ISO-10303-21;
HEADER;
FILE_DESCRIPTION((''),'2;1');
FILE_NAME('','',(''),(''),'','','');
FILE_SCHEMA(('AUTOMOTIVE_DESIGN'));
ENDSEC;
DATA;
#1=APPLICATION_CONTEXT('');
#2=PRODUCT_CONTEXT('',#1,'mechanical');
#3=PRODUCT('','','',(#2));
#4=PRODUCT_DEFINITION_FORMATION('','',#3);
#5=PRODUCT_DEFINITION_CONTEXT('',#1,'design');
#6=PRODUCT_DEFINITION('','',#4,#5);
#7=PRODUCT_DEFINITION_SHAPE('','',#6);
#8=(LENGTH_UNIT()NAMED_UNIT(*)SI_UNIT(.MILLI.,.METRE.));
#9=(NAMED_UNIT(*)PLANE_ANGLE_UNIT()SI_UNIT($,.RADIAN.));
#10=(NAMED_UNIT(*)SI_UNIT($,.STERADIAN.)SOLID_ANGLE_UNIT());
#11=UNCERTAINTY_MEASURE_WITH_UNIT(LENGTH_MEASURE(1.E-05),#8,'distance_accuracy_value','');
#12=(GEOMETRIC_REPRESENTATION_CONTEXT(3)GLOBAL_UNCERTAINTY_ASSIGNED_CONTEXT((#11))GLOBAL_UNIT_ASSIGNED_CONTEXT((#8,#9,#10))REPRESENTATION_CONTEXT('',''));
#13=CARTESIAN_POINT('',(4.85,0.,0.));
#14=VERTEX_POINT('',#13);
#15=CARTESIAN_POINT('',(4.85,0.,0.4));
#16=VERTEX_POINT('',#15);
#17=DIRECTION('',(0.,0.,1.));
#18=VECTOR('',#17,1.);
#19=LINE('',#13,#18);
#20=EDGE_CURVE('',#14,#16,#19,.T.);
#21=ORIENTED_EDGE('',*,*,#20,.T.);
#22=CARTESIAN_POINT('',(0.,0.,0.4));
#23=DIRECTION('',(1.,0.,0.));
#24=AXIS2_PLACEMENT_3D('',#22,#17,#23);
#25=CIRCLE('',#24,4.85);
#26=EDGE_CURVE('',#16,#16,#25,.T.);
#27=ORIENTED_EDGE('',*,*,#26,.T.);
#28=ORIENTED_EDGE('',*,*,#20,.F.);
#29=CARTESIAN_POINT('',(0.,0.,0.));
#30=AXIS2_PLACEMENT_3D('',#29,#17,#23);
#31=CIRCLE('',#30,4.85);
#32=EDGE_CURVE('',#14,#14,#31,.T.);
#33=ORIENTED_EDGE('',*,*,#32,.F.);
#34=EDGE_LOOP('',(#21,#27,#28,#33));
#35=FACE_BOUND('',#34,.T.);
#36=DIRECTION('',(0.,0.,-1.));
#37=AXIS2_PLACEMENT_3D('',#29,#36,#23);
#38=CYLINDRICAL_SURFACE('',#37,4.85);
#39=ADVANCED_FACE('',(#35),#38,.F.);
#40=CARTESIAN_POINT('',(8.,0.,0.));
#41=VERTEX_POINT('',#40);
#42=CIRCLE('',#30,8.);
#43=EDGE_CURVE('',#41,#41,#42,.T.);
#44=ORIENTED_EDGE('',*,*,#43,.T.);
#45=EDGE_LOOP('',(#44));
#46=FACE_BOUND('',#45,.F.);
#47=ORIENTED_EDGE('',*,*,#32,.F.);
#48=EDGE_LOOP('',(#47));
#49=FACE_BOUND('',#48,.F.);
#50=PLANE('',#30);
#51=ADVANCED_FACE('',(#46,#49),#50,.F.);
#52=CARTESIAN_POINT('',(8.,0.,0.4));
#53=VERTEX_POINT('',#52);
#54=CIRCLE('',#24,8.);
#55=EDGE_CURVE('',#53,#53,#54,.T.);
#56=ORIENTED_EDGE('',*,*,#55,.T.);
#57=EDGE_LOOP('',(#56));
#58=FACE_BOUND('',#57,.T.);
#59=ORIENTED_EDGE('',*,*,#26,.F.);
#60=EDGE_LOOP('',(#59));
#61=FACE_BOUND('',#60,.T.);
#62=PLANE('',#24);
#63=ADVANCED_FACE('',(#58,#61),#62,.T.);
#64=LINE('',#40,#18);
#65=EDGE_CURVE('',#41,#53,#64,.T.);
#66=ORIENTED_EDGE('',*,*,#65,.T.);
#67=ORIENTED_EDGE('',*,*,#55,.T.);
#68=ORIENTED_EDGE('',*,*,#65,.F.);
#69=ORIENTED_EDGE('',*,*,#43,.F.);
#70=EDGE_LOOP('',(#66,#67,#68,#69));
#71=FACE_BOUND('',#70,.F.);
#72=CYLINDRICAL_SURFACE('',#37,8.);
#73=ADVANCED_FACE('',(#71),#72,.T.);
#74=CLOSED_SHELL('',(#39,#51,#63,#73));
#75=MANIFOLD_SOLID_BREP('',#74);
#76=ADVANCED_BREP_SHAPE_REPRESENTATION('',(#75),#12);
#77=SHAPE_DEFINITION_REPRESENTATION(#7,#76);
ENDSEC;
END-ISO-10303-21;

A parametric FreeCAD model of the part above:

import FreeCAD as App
import Part
import Sketcher
Q = App.Units.Quantity

doc = App.newDocument("Part")
body = doc.addObject("PartDesign::Body", "Body")

# Sketch on XY plane
sketch1 = body.newObject("Sketcher::SketchObject", "Sketch")
sketch1.AttachmentSupport = (doc.getObject("XY_Plane"), [""])
sketch1.MapMode = "FlatFace"
sketch1.addGeometry(Part.Circle(App.Vector(0, 0, 0), App.Vector(0, 0, 1), 8), False)
sketch1.addGeometry(Part.Circle(App.Vector(0, 0, 0), App.Vector(0, 0, 1), 4.8), False)
sketch1.addConstraint(Sketcher.Constraint("Coincident", 0, 3, -1, 1))
sketch1.addConstraint(Sketcher.Constraint("Coincident", 1, 3, -1, 1))
sketch1.addConstraint(Sketcher.Constraint("Diameter", 0, Q("16 mm")))
sketch1.addConstraint(Sketcher.Constraint("Diameter", 1, Q("9.7 mm")))
pad1 = body.newObject("PartDesign::Pad", "Pad")
pad1.Profile = sketch1
pad1.Length = 0.4

doc.recompute()
